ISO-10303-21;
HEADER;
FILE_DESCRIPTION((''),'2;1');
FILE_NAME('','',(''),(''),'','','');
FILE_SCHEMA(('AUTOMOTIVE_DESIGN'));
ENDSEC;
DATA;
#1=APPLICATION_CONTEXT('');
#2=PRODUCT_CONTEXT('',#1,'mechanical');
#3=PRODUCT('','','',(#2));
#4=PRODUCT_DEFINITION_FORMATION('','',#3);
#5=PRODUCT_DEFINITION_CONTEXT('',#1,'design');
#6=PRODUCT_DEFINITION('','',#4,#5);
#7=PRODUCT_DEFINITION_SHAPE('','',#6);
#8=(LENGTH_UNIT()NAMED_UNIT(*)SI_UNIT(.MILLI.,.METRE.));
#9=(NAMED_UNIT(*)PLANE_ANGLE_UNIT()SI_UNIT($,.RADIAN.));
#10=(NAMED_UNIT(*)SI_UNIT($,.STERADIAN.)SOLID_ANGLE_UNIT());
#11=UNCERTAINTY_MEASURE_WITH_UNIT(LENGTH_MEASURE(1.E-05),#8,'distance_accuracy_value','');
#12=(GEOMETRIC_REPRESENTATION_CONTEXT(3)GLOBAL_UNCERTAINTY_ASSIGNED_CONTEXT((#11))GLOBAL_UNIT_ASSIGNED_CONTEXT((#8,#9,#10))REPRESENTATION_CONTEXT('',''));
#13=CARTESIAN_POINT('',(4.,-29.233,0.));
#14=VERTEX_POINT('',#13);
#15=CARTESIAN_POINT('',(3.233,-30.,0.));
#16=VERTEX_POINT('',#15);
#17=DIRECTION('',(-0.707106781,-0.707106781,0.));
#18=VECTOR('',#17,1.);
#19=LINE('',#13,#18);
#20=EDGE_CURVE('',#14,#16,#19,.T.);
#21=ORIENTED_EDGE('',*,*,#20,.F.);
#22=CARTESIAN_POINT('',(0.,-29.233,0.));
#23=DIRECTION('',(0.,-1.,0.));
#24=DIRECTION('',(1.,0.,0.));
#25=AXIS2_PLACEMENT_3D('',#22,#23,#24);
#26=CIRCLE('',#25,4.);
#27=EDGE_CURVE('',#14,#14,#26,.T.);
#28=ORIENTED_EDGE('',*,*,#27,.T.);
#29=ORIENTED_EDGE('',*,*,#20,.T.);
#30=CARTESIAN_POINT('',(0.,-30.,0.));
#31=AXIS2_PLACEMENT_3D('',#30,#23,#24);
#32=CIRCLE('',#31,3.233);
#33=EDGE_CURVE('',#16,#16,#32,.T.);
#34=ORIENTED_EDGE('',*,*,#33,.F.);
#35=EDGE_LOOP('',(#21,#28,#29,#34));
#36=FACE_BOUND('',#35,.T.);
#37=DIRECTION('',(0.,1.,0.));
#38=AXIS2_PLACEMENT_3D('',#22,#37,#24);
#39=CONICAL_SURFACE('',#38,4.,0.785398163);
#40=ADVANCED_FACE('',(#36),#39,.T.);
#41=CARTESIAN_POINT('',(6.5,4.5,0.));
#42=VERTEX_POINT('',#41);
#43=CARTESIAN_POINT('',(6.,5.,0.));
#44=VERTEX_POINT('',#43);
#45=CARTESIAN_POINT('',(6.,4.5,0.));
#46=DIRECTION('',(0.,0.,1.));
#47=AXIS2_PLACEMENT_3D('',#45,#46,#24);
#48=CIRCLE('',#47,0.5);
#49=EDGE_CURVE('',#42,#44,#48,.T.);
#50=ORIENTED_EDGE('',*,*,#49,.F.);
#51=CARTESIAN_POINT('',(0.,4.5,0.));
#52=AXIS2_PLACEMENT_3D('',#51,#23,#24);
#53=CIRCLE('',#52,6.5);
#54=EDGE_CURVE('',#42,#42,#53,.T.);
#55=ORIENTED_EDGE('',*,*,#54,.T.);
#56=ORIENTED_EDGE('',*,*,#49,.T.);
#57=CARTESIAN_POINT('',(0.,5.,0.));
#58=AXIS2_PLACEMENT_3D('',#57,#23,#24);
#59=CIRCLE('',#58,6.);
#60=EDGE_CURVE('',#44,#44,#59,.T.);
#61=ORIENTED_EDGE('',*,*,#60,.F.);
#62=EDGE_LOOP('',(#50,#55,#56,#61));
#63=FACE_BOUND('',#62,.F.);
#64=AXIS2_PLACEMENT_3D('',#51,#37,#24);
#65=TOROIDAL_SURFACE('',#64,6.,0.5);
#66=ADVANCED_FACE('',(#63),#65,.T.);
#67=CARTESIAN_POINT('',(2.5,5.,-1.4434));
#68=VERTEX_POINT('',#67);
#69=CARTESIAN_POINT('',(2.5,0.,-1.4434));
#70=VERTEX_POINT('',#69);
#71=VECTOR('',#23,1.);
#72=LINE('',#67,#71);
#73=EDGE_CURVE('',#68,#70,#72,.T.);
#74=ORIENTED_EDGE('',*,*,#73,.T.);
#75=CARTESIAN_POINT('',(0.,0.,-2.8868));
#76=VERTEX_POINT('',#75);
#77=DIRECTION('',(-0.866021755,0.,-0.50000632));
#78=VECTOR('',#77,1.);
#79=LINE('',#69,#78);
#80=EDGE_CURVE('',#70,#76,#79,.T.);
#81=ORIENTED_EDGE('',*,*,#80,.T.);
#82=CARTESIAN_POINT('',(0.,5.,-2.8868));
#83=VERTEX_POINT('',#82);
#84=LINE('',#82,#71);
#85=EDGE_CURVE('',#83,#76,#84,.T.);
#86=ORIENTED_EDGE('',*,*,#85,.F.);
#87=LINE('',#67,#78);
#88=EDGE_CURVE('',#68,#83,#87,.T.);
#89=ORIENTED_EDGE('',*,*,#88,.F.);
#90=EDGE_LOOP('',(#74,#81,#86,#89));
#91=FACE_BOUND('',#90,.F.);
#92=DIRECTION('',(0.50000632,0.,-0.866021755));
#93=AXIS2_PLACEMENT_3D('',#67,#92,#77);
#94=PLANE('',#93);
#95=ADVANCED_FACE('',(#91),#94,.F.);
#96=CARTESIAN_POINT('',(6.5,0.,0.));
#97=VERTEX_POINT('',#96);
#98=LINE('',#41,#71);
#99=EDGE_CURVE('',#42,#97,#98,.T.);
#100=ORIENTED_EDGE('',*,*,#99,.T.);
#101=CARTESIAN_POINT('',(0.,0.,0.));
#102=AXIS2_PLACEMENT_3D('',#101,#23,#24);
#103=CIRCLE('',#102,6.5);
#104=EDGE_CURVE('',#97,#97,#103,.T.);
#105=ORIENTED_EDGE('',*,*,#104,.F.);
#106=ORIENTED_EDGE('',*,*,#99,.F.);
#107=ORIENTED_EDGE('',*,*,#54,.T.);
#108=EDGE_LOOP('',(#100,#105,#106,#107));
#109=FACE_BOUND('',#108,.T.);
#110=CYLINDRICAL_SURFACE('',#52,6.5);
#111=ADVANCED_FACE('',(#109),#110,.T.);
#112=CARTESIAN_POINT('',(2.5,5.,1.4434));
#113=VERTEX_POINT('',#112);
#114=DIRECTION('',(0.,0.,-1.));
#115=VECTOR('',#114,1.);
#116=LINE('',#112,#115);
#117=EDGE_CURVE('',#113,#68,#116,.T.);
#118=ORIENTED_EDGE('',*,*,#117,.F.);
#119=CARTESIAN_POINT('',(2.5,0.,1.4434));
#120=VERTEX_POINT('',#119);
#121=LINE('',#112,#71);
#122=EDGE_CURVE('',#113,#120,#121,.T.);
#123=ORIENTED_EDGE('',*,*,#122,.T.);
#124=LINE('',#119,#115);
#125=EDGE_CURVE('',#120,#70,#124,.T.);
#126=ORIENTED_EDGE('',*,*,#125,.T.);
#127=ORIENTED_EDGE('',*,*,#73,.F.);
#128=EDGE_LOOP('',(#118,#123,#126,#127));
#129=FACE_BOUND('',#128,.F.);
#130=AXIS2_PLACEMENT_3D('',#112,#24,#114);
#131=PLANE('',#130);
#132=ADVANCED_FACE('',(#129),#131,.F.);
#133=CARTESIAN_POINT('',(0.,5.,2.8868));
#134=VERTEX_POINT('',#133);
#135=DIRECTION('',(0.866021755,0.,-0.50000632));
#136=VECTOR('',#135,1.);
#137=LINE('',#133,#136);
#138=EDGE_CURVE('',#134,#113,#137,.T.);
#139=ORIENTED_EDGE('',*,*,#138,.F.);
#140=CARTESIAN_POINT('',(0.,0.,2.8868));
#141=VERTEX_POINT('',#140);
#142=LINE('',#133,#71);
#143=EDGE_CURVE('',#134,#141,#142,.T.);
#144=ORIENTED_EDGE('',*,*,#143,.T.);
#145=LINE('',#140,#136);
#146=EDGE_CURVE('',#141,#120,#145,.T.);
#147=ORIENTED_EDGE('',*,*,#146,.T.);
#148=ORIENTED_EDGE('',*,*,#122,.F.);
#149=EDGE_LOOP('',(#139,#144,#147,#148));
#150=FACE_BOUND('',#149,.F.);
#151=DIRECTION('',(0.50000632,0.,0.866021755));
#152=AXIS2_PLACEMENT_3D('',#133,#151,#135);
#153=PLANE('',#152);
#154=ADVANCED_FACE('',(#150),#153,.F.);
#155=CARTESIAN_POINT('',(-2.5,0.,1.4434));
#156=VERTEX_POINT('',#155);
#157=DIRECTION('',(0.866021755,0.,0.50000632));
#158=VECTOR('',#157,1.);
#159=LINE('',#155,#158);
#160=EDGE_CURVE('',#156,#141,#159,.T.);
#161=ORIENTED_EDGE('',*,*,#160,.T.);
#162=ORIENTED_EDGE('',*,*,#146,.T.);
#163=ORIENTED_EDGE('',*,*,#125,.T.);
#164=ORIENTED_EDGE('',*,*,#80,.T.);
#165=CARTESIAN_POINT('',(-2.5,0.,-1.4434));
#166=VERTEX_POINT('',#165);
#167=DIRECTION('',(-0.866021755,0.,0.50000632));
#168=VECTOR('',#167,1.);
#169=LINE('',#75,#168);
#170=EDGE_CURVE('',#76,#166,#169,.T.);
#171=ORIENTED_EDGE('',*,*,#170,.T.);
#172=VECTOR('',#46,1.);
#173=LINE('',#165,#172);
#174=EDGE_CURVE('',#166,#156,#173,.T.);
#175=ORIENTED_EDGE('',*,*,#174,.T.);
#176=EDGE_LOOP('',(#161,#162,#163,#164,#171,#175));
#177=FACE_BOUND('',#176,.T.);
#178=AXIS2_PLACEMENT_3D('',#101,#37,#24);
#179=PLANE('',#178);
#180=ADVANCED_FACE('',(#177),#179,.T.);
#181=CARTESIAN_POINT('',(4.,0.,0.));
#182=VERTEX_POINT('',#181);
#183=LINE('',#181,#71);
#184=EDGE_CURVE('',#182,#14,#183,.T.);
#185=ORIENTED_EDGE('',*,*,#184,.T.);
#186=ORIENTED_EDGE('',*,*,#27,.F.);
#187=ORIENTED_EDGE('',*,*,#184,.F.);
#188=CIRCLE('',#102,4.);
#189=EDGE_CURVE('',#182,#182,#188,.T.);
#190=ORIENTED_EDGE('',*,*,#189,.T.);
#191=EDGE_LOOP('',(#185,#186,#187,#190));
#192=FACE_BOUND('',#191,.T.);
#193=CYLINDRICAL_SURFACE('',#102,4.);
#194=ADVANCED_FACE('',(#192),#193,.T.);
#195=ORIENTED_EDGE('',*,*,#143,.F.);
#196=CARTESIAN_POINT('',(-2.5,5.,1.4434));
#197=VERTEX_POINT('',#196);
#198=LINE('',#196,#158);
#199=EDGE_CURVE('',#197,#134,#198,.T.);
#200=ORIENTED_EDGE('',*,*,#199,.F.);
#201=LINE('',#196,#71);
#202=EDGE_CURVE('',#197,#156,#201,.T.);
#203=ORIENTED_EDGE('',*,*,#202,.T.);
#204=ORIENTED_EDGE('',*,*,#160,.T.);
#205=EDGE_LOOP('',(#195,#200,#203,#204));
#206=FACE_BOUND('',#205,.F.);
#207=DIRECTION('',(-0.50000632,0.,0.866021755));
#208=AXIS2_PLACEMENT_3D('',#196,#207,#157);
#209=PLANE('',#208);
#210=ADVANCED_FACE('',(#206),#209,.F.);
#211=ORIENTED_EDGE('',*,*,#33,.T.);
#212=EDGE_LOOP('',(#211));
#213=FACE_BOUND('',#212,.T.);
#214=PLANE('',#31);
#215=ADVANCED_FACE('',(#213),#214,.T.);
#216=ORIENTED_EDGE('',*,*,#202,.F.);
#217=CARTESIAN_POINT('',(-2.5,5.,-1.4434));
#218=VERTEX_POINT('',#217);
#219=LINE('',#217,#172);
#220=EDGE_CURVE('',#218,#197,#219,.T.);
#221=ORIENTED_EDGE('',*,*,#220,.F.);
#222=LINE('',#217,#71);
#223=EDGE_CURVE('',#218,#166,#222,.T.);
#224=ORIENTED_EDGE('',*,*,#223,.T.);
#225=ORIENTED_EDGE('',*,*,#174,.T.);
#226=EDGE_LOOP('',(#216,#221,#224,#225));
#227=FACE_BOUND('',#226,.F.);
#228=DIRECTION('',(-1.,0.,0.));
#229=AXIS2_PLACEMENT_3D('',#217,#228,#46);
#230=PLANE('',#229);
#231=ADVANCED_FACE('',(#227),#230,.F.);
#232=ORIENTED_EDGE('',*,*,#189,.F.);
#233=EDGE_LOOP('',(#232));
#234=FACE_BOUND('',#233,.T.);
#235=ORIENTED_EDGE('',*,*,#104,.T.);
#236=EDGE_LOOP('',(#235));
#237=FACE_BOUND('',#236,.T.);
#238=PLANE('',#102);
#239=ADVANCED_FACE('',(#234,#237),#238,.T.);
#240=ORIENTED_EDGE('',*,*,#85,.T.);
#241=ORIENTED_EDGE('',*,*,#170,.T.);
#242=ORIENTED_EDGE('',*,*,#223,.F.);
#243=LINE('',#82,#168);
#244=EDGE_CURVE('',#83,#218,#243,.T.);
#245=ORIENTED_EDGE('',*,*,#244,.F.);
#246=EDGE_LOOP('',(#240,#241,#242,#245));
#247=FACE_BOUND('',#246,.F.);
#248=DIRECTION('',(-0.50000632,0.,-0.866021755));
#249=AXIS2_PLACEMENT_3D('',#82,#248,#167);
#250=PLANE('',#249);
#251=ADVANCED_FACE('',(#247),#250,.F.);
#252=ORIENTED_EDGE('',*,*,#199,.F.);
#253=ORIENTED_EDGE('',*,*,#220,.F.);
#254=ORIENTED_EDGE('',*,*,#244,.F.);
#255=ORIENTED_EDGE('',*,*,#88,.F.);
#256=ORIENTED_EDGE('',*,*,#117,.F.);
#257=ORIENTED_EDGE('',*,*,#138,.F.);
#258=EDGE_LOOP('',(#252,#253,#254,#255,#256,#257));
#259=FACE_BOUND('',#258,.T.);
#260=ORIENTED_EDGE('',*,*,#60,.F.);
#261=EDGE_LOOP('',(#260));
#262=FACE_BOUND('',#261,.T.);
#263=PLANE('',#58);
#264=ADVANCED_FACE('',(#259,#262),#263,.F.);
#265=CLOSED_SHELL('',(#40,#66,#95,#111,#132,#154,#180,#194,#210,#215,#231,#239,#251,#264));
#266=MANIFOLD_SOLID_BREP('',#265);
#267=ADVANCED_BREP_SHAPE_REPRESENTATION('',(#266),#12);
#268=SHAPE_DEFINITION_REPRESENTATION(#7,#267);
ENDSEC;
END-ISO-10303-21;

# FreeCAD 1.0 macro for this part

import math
import FreeCAD as App
import Part
import Sketcher

V = App.Vector
Q = App.Units.Quantity

doc = App.newDocument("Part")
body = doc.addObject("PartDesign::Body", "Body")

# Sketch on XY plane
sketch1 = doc.addObject("Sketcher::SketchObject", "Sketch")
body.addObject(sketch1)
sketch1.AttachmentSupport = (doc.XY_Plane, [""])
sketch1.MapMode = "FlatFace"
sketch1.addGeometry([
    Part.LineSegment(V(0, 0, 0), V(0, -30, 0)),  # 0
    Part.LineSegment(V(0, -30, 0), V(3.2, -30, 0)),  # 1
    Part.LineSegment(V(3.2, -30, 0), V(4, -29.2, 0)),  # 2
    Part.LineSegment(V(4, -29.2, 0), V(4, 0, 0)),  # 3
    Part.LineSegment(V(4, 0, 0), V(0, 0, 0)),  # 4
], False)
sketch1.addConstraint([
    Sketcher.Constraint("Coincident", 0, 2, 1, 1),
    Sketcher.Constraint("Coincident", 1, 2, 2, 1),
    Sketcher.Constraint("Coincident", 2, 2, 3, 1),
    Sketcher.Constraint("Coincident", 3, 2, 4, 1),
    Sketcher.Constraint("Coincident", 4, 2, 0, 1),
    Sketcher.Constraint("Vertical", 0),
    Sketcher.Constraint("Horizontal", 1),
    Sketcher.Constraint("Vertical", 3),
    Sketcher.Constraint("Horizontal", 4),
    Sketcher.Constraint("Coincident", 4, 2, -1, 1),
    Sketcher.Constraint("DistanceX", 4, 2, 4, 1, Q("4 mm")),
    Sketcher.Constraint("DistanceY", 0, 2, 0, 1, Q("30 mm")),
    Sketcher.Constraint("Angle", 2, Q("45 deg")),
    Sketcher.Constraint("DistanceX", 1, 1, 1, 2, Q("3.233 mm")),
])
revolution = doc.addObject("PartDesign::Revolution", "Revolution")
body.addObject(revolution)
revolution.Profile = sketch1
revolution.ReferenceAxis = (sketch1, ["V_Axis"])
revolution.Angle = 360

# Sketch on XY plane
sketch2 = doc.addObject("Sketcher::SketchObject", "Sketch001")
body.addObject(sketch2)
sketch2.AttachmentSupport = (doc.XY_Plane, [""])
sketch2.MapMode = "FlatFace"
sketch2.addGeometry([
    Part.LineSegment(V(0, 5, 0), V(0, 0, 0)),  # 0
    Part.LineSegment(V(0, 0, 0), V(6.5, 0, 0)),  # 1
    Part.LineSegment(V(6.5, 0, 0), V(6.5, 4.5, 0)),  # 2
    Part.ArcOfCircle(Part.Circle(V(6, 4.5, 0), V(0, 0, 1), 0.5), math.radians(0), math.radians(90)),  # 3
    Part.LineSegment(V(6, 5, 0), V(0, 5, 0)),  # 4
], False)
sketch2.addConstraint([
    Sketcher.Constraint("Coincident", 0, 2, 1, 1),
    Sketcher.Constraint("Coincident", 1, 2, 2, 1),
    Sketcher.Constraint("Tangent", 2, 2, 3, 1),
    Sketcher.Constraint("Tangent", 3, 2, 4, 1),
    Sketcher.Constraint("Coincident", 4, 2, 0, 1),
    Sketcher.Constraint("Vertical", 0),
    Sketcher.Constraint("Horizontal", 1),
    Sketcher.Constraint("Vertical", 2),
    Sketcher.Constraint("Horizontal", 4),
    Sketcher.Constraint("Coincident", 0, 2, -1, 1),
    Sketcher.Constraint("Radius", 3, Q("0.5 mm")),
    Sketcher.Constraint("DistanceX", 4, 2, 4, 1, Q("6 mm")),
    Sketcher.Constraint("DistanceY", 0, 2, 0, 1, Q("5 mm")),
])
revolution2 = doc.addObject("PartDesign::Revolution", "Revolution001")
body.addObject(revolution2)
revolution2.Profile = sketch2
revolution2.ReferenceAxis = (sketch2, ["V_Axis"])
revolution2.Angle = 360

# Sketch on XZ plane
sketch3 = doc.addObject("Sketcher::SketchObject", "Sketch002")
body.addObject(sketch3)
sketch3.AttachmentSupport = (doc.XZ_Plane, [""])
sketch3.MapMode = "FlatFace"
sketch3.AttachmentOffset = App.Placement(V(0, 0, -5), App.Rotation())
sketch3.addGeometry([
    Part.LineSegment(V(-2.5, -1.4, 0), V(-2.5, 1.4, 0)),  # 0
    Part.LineSegment(V(-2.5, 1.4, 0), V(0, 2.9, 0)),  # 1
    Part.LineSegment(V(0, 2.9, 0), V(2.5, 1.4, 0)),  # 2
    Part.LineSegment(V(2.5, 1.4, 0), V(2.5, -1.4, 0)),  # 3
    Part.LineSegment(V(2.5, -1.4, 0), V(0, -2.9, 0)),  # 4
    Part.LineSegment(V(0, -2.9, 0), V(-2.5, -1.4, 0)),  # 5
], False)
sketch3.addConstraint([
    Sketcher.Constraint("Coincident", 0, 2, 1, 1),
    Sketcher.Constraint("Coincident", 1, 2, 2, 1),
    Sketcher.Constraint("Coincident", 2, 2, 3, 1),
    Sketcher.Constraint("Coincident", 3, 2, 4, 1),
    Sketcher.Constraint("Coincident", 4, 2, 5, 1),
    Sketcher.Constraint("Coincident", 5, 2, 0, 1),
    Sketcher.Constraint("Vertical", 0),
    Sketcher.Constraint("Vertical", 3),
    Sketcher.Constraint("Symmetric", 0, 2, 3, 2, -1, 1),
    Sketcher.Constraint("Symmetric", 1, 2, 4, 2, -1, 1),
    Sketcher.Constraint("PointOnObject", 1, 2, -2),
    Sketcher.Constraint("Parallel", 2, 5),
    Sketcher.Constraint("Horizontal", 0, 2, 2, 2),
    Sketcher.Constraint("Angle", 1, Q("30.0004 deg")),
    Sketcher.Constraint("DistanceX", 0, 2, 2, 2, Q("5 mm")),
    Sketcher.Constraint("DistanceY", 0, 1, 0, 2, Q("2.8868 mm")),
])
pocket1 = doc.addObject("PartDesign::Pocket", "Pocket")
body.addObject(pocket1)
pocket1.Profile = sketch3
pocket1.Length = 5
pocket1.Reversed = True

doc.recompute()
